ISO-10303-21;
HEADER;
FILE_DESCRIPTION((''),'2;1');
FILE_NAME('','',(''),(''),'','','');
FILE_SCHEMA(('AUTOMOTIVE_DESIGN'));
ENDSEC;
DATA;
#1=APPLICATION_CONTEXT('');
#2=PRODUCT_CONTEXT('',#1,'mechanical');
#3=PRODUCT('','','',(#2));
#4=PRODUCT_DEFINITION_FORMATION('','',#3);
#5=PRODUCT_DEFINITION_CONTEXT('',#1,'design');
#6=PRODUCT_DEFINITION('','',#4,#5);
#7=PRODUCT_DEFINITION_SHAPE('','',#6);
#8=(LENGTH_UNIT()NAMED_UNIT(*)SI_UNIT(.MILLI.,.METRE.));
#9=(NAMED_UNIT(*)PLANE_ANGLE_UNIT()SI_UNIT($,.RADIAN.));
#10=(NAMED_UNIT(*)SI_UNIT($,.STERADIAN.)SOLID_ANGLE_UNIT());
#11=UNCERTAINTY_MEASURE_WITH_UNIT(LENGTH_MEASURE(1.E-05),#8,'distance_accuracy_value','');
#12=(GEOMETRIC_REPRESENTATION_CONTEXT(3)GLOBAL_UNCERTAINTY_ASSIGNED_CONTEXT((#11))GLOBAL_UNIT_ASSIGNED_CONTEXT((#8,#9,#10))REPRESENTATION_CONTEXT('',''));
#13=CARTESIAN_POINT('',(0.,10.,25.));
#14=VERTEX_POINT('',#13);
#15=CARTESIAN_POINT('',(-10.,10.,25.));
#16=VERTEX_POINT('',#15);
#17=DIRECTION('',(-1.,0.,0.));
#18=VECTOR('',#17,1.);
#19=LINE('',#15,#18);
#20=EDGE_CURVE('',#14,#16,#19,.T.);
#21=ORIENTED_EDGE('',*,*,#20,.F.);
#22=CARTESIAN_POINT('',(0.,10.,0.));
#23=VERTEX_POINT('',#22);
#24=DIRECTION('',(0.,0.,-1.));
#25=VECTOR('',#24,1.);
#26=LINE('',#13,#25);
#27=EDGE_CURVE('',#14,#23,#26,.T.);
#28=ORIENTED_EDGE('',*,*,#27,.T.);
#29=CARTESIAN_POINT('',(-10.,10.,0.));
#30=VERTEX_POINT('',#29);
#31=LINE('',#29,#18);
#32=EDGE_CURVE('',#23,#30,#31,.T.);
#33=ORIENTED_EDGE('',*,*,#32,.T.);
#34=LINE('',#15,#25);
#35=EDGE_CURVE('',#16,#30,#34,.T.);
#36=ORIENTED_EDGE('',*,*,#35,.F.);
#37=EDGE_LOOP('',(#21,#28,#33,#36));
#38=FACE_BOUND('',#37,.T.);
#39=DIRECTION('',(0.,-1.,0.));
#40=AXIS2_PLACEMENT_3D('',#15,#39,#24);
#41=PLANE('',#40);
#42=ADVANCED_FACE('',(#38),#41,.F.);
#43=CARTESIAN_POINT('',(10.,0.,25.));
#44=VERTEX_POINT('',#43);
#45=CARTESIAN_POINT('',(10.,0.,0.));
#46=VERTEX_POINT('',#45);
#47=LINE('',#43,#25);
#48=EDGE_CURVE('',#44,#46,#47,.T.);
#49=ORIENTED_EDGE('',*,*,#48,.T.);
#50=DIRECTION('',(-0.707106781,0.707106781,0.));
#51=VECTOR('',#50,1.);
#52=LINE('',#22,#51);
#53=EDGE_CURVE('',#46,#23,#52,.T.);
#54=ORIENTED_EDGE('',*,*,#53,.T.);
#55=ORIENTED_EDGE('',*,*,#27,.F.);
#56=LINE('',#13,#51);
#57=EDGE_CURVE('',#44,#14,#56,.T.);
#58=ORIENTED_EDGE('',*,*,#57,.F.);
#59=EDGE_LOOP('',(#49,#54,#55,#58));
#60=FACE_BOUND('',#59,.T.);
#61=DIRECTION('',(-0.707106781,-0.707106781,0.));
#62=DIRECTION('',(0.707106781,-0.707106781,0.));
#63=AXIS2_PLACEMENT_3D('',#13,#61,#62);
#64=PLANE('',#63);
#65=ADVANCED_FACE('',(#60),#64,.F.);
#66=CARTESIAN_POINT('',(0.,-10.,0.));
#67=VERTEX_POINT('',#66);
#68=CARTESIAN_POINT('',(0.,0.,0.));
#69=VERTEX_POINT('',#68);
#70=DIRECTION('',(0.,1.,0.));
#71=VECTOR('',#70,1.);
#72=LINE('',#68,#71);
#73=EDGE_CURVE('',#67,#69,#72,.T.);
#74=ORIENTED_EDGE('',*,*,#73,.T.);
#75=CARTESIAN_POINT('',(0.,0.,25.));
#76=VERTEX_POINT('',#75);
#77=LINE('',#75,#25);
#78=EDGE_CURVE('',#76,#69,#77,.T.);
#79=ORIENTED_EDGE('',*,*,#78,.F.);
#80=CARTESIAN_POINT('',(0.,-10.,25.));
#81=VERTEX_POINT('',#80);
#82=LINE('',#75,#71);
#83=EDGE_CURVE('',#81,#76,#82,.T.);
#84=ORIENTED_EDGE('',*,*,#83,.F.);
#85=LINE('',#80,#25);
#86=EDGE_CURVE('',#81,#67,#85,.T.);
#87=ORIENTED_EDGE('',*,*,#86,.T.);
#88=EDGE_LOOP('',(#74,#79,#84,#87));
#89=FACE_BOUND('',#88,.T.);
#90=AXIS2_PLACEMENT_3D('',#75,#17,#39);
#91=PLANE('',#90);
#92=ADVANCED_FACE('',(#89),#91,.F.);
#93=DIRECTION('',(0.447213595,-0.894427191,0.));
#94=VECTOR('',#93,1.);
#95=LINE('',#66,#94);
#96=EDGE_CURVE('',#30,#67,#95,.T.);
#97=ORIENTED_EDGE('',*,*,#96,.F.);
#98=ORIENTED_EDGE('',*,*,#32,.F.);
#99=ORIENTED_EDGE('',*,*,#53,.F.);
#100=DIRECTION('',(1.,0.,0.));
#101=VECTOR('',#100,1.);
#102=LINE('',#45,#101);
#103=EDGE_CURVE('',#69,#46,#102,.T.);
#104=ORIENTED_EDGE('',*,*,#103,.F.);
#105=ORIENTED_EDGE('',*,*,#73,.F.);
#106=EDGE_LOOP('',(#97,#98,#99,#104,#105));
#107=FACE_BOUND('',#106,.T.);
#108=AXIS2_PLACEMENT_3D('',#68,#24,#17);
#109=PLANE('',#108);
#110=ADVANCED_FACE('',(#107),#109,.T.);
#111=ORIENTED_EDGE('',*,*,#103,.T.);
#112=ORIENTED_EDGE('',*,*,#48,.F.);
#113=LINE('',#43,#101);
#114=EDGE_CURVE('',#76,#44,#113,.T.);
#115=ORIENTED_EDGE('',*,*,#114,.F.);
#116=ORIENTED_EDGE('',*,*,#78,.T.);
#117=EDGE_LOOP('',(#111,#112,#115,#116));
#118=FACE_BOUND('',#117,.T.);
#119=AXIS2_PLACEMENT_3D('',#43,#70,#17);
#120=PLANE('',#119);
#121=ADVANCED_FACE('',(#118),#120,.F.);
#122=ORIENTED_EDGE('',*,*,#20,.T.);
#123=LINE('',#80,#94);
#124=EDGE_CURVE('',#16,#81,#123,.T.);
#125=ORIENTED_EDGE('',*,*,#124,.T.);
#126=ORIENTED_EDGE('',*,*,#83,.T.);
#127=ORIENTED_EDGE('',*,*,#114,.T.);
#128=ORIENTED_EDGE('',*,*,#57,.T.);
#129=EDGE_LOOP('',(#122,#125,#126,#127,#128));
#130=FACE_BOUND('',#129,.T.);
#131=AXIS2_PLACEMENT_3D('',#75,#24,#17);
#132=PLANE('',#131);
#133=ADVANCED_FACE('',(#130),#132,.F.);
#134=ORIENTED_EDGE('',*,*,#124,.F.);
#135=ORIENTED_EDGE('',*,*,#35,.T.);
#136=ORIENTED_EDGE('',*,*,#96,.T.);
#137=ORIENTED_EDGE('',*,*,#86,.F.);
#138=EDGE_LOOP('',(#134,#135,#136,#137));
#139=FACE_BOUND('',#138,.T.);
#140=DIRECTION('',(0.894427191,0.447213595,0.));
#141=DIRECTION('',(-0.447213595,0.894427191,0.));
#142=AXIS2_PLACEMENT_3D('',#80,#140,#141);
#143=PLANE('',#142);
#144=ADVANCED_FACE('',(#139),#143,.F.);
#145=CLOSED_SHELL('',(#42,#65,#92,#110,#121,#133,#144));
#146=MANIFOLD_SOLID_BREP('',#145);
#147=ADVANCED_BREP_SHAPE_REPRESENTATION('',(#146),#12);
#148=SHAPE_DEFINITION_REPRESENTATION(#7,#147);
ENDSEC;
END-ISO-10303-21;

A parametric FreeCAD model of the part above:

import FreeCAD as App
import Part
import Sketcher

doc = App.newDocument("Part")
body = doc.addObject("PartDesign::Body", "Body")

# Sketch on XY plane
sketch1 = doc.addObject("Sketcher::SketchObject", "Sketch")
body.addObject(sketch1)
sketch1.AttachmentSupport = (doc.XY_Plane, [""])
sketch1.MapMode = "FlatFace"
sketch1.addGeometry([
    Part.LineSegment(App.Vector(0, 10, 0), App.Vector(-10, 10, 0)),  # 0
    Part.LineSegment(App.Vector(-10, 10, 0), App.Vector(0, -10, 0)),  # 1
    Part.LineSegment(App.Vector(0, -10, 0), App.Vector(0, 0, 0)),  # 2
    Part.LineSegment(App.Vector(0, 0, 0), App.Vector(10, 0, 0)),  # 3
    Part.LineSegment(App.Vector(10, 0, 0), App.Vector(0, 10, 0)),  # 4
], False)
sketch1.addConstraint([
    Sketcher.Constraint("Coincident", 0, 2, 1, 1),
    Sketcher.Constraint("Coincident", 1, 2, 2, 1),
    Sketcher.Constraint("Coincident", 2, 2, 3, 1),
    Sketcher.Constraint("Coincident", 3, 2, 4, 1),
    Sketcher.Constraint("Coincident", 4, 2, 0, 1),
    Sketcher.Constraint("Horizontal", 0),
    Sketcher.Constraint("Vertical", 2),
    Sketcher.Constraint("Horizontal", 3),
    Sketcher.Constraint("Coincident", 2, 2, -1, 1),
    Sketcher.Constraint("Symmetric", 1, 2, 4, 2, -1, 1),
    Sketcher.Constraint("Equal", 0, 3),
    Sketcher.Constraint("Equal", 3, 2),
    Sketcher.Constraint("DistanceX", 0, 2, 0, 1, 10.0),
])
pad1 = doc.addObject("PartDesign::Pad", "Pad")
body.addObject(pad1)
pad1.Profile = sketch1
pad1.Length = 25

doc.recompute()
